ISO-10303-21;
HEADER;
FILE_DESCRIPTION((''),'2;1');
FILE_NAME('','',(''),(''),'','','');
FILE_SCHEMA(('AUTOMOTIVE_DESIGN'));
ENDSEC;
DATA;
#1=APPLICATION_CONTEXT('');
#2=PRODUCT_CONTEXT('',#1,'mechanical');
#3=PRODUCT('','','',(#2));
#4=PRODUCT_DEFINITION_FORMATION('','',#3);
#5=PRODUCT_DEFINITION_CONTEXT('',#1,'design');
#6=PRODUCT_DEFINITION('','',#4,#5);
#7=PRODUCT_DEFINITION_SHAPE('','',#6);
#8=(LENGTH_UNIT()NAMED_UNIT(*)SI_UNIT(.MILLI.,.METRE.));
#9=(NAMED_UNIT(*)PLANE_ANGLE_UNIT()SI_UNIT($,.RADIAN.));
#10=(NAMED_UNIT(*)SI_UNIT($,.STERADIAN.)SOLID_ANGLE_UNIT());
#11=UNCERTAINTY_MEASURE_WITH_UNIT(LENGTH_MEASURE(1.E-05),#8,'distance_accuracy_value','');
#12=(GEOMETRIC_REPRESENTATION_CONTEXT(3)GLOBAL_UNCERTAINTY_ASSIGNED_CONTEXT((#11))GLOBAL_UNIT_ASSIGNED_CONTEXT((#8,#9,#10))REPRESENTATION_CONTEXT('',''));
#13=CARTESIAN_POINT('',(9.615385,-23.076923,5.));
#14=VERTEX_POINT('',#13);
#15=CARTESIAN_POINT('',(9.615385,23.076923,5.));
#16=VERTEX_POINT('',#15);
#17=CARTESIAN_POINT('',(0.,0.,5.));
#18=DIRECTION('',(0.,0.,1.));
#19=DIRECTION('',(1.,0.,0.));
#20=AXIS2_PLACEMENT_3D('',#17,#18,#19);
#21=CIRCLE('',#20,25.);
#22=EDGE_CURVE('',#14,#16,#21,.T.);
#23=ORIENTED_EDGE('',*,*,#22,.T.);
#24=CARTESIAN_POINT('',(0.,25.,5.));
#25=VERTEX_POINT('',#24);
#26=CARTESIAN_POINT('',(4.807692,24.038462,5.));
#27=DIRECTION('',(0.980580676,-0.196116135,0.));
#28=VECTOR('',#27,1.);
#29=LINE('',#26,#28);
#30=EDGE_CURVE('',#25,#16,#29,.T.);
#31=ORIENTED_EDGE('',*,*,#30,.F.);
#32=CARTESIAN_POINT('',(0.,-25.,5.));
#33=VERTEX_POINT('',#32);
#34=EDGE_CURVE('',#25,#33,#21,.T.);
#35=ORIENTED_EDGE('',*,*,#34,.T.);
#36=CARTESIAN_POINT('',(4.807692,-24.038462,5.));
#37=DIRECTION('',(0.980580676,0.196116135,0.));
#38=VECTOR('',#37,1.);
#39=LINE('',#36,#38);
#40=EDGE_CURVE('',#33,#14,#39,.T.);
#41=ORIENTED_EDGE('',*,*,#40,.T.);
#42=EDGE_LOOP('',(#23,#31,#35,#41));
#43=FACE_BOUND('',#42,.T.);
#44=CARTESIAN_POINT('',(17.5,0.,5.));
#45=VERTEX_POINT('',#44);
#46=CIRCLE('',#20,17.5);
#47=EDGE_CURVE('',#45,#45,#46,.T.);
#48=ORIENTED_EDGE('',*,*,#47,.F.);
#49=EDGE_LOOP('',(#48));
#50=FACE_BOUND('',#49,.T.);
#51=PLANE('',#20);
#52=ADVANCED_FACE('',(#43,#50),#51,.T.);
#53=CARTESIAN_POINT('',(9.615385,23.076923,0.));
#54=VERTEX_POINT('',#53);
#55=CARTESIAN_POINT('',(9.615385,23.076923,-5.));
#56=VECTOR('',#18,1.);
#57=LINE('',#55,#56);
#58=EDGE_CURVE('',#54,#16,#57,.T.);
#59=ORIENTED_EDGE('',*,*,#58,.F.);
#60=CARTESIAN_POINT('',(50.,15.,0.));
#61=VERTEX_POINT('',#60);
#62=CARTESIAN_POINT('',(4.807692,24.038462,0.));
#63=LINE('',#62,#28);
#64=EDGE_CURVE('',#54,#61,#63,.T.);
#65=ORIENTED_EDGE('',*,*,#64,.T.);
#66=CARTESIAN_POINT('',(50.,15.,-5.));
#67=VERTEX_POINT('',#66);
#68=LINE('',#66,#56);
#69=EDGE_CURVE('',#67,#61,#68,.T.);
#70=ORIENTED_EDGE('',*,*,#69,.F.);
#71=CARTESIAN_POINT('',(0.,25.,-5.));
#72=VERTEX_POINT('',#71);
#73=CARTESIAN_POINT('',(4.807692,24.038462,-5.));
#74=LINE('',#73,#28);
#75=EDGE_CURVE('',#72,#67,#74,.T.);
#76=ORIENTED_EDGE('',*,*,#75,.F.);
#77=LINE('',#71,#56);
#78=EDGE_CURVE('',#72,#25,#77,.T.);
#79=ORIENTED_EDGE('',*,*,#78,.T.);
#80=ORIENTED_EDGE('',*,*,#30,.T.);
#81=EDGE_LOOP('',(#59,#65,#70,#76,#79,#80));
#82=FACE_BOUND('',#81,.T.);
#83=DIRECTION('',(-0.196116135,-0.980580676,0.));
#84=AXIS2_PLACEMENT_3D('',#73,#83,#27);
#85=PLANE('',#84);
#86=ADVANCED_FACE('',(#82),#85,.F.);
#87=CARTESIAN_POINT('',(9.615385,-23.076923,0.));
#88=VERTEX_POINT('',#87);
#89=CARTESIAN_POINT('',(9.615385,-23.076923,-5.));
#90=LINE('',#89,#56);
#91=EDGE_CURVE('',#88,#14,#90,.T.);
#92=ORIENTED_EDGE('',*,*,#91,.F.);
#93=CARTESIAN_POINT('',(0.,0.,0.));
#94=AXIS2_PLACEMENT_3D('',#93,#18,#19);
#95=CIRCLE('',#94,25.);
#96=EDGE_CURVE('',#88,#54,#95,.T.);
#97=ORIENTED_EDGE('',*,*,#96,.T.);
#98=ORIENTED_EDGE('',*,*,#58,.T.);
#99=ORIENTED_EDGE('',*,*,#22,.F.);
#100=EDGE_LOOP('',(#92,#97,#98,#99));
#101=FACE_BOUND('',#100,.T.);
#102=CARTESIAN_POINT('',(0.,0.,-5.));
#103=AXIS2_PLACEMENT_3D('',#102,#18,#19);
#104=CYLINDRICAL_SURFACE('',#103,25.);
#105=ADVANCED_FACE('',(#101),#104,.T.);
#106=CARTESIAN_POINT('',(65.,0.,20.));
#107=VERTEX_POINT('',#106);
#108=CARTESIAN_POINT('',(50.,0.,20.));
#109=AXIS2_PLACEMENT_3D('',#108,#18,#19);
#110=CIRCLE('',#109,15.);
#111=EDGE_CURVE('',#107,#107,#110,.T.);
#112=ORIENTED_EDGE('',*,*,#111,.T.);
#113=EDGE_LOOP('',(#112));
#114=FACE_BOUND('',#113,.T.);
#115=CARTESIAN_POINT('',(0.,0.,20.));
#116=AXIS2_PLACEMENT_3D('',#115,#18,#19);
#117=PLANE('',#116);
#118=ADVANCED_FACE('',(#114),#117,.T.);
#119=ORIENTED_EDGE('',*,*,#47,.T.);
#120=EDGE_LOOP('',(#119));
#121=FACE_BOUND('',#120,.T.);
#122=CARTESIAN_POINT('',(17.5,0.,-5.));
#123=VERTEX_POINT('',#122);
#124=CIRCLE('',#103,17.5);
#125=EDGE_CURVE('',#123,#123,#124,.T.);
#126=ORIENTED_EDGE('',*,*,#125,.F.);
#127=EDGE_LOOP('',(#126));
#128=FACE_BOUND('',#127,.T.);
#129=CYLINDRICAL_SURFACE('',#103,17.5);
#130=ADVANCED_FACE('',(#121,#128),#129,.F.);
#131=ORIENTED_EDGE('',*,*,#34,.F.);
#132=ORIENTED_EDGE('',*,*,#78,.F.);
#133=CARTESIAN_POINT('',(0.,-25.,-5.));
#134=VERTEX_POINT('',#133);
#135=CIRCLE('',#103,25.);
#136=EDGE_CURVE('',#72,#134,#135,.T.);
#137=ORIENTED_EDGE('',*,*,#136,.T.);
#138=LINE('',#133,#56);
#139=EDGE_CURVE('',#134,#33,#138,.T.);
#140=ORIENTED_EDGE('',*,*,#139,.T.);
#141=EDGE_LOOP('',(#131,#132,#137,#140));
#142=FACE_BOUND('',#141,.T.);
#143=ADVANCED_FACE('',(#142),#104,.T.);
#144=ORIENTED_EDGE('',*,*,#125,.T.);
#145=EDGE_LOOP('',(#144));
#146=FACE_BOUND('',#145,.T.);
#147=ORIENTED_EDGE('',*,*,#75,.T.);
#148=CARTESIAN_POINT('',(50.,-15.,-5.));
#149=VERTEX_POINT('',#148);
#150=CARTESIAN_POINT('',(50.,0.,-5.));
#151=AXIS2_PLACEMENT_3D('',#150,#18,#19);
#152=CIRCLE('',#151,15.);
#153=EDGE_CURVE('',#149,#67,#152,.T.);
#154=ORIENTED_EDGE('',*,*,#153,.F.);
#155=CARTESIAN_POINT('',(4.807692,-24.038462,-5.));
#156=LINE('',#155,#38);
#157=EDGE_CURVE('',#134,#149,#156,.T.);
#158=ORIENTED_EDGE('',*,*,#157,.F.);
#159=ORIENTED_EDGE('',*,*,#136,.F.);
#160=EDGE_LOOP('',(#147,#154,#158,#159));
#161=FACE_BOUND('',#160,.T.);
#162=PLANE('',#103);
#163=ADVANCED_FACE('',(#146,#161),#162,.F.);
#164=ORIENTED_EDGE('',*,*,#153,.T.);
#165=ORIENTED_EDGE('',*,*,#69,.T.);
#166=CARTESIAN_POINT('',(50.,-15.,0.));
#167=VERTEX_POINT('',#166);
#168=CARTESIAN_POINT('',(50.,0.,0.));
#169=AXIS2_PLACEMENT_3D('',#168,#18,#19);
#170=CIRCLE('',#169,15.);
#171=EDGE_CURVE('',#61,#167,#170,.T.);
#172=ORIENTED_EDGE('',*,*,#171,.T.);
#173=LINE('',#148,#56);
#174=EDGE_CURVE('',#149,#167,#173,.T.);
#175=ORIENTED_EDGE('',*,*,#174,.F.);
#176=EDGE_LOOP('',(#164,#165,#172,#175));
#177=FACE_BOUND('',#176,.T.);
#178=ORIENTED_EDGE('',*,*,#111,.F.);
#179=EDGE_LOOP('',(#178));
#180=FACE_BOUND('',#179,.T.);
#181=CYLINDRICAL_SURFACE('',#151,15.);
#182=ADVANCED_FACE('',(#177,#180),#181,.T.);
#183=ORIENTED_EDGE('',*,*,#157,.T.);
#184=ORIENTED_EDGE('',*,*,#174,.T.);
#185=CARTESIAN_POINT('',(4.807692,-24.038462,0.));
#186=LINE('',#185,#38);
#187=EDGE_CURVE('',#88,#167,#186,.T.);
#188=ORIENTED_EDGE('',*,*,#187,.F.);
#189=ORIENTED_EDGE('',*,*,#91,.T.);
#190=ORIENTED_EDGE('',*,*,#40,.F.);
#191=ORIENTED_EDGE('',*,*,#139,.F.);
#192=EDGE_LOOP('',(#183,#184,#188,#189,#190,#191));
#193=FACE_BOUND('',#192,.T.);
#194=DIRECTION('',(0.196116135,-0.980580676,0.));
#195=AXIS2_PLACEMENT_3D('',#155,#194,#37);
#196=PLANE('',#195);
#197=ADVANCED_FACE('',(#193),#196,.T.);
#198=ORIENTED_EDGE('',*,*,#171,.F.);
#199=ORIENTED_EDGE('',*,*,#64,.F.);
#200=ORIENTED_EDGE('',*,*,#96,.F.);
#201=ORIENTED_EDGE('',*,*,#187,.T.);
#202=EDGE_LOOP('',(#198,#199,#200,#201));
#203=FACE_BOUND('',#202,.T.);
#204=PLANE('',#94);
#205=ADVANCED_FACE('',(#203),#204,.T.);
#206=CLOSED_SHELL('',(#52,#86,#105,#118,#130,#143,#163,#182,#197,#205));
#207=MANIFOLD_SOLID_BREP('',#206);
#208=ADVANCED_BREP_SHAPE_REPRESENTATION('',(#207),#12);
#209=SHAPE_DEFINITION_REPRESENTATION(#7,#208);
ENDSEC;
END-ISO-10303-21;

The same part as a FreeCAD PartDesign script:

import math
import FreeCAD as App
import Part
import Sketcher

V = App.Vector

doc = App.newDocument("Part")
params = doc.addObject("Spreadsheet::Sheet", "Params")
for row, (alias, value) in enumerate([
    ("sketch1_radius", "25 mm"),
    ("sketch1_radius2", "15 mm"),
    ("pad1_length", "5 mm"),
    ("sketch2_diameter", "30 mm"),
    ("pad2_length", "20 mm"),
    ("pad2_length2", "5 mm"),
    ("sketch3_diameter", "35 mm"),
    ("sketch3_radius", "25 mm"),
    ("pad3_length", "5 mm"),
    ("pad3_length2", "5 mm"),
], start=1):
    params.set(f"A{row}", alias)
    params.set(f"B{row}", "=" + value)
    params.setAlias(f"B{row}", alias)

body = doc.addObject("PartDesign::Body", "Body")

# Sketch on XY plane
sketch1 = doc.addObject("Sketcher::SketchObject", "Sketch")
body.addObject(sketch1)
sketch1.AttachmentSupport = (doc.XY_Plane, [""])
sketch1.MapMode = "FlatFace"
sketch1.addGeometry(Part.LineSegment(V(50, 15, 0), V(10, 23, 0)), False)
sketch1.addGeometry(Part.ArcOfCircle(Part.Circle(V(0, 0, 0), V(0, 0, 1), 25), math.radians(0), math.radians(67)), False)
sketch1.addGeometry(Part.ArcOfCircle(Part.Circle(V(0, 0, 0), V(0, 0, 1), 25), math.radians(-67), math.radians(0)), False)
sketch1.addGeometry(Part.LineSegment(V(10, -23, 0), V(50, -15, 0)), False)
sketch1.addGeometry(Part.ArcOfCircle(Part.Circle(V(50, 0, 0), V(0, 0, 1), 15), math.radians(90), math.radians(270)), False)
sketch1.addConstraint(Sketcher.Constraint("Coincident", 0, 2, 1, 2))
sketch1.addConstraint(Sketcher.Constraint("Tangent", 1, 1, 2, 2))
sketch1.addConstraint(Sketcher.Constraint("Coincident", 2, 1, 3, 1))
sketch1.addConstraint(Sketcher.Constraint("Coincident", 3, 2, 4, 2))
sketch1.addConstraint(Sketcher.Constraint("Coincident", 4, 1, 0, 1))
sketch1.addConstraint(Sketcher.Constraint("Coincident", 1, 3, -1, 1))
sketch1.addConstraint(Sketcher.Constraint("Equal", 1, 2))
sketch1.addConstraint(Sketcher.Constraint("Symmetric", 3, 2, 4, 1, -1))
sketch1.addConstraint(Sketcher.Constraint("PointOnObject", 1, 1, -1))
sketch1.addConstraint(Sketcher.Constraint("Vertical", 0, 2, 2, 1))
sketch1.addConstraint(Sketcher.Constraint("Vertical", 4, 3, 3, 2))
sketch1.addConstraint(Sketcher.Constraint("Radius", 1, 25.0))
sketch1.addConstraint(Sketcher.Constraint("Radius", 4, 15.0))
sketch1.addConstraint(Sketcher.Constraint("DistanceX", -1, 1, 4, 3, 50.0))
sketch1.addConstraint(Sketcher.Constraint("Distance", 0, 41.184388))
sketch1.setExpression("Constraints[11]", "Params.sketch1_radius")
sketch1.setExpression("Constraints[12]", "Params.sketch1_radius2")
pad1 = doc.addObject("PartDesign::Pad", "Pad")
body.addObject(pad1)
pad1.Profile = sketch1
pad1.setExpression("Length", "Params.pad1_length")
pad1.Reversed = True

# Sketch on XY plane
sketch2 = doc.addObject("Sketcher::SketchObject", "Sketch001")
body.addObject(sketch2)
sketch2.AttachmentSupport = (doc.XY_Plane, [""])
sketch2.MapMode = "FlatFace"
sketch2.addGeometry(Part.Circle(V(50, 0, 0), V(0, 0, 1), 15), False)
sketch2.addConstraint(Sketcher.Constraint("PointOnObject", 0, 3, -1))
sketch2.addConstraint(Sketcher.Constraint("Diameter", 0, 30.0))
sketch2.addConstraint(Sketcher.Constraint("DistanceX", -1, 1, 0, 3, 50.0))
sketch2.setExpression("Constraints[1]", "Params.sketch2_diameter")
pad2 = doc.addObject("PartDesign::Pad", "Pad001")
body.addObject(pad2)
pad2.Profile = sketch2
pad2.Type = "TwoLengths"
pad2.setExpression("Length", "Params.pad2_length")
pad2.setExpression("Length2", "Params.pad2_length2")

# Sketch on XY plane
sketch3 = doc.addObject("Sketcher::SketchObject", "Sketch002")
body.addObject(sketch3)
sketch3.AttachmentSupport = (doc.XY_Plane, [""])
sketch3.MapMode = "FlatFace"
sketch3.addGeometry(Part.LineSegment(V(10, 23, 0), V(0, 25, 0)), False)
sketch3.addGeometry(Part.ArcOfCircle(Part.Circle(V(0, 0, 0), V(0, 0, 1), 25), math.radians(90), math.radians(270)), False)
sketch3.addGeometry(Part.LineSegment(V(0, -25, 0), V(10, -23, 0)), False)
sketch3.addGeometry(Part.ArcOfCircle(Part.Circle(V(0, 0, 0), V(0, 0, 1), 25), math.radians(-67), math.radians(0)), False)
sketch3.addGeometry(Part.ArcOfCircle(Part.Circle(V(0, 0, 0), V(0, 0, 1), 25), math.radians(0), math.radians(67)), False)
sketch3.addGeometry(Part.Circle(V(0, 0, 0), V(0, 0, 1), 18), False)
sketch3.addConstraint(Sketcher.Constraint("Coincident", 0, 2, 1, 1))
sketch3.addConstraint(Sketcher.Constraint("Coincident", 1, 2, 2, 1))
sketch3.addConstraint(Sketcher.Constraint("Coincident", 2, 2, 3, 1))
sketch3.addConstraint(Sketcher.Constraint("Tangent", 3, 2, 4, 1))
sketch3.addConstraint(Sketcher.Constraint("Coincident", 4, 2, 0, 1))
sketch3.addConstraint(Sketcher.Constraint("Coincident", 1, 3, -1, 1))
sketch3.addConstraint(Sketcher.Constraint("Coincident", 3, 3, -1, 1))
sketch3.addConstraint(Sketcher.Constraint("Coincident", 5, 3, -1, 1))
sketch3.addConstraint(Sketcher.Constraint("Equal", 1, 3))
sketch3.addConstraint(Sketcher.Constraint("Equal", 3, 4))
sketch3.addConstraint(Sketcher.Constraint("PointOnObject", 0, 2, -2))
sketch3.addConstraint(Sketcher.Constraint("PointOnObject", 1, 2, -2))
sketch3.addConstraint(Sketcher.Constraint("PointOnObject", 3, 2, -1))
sketch3.addConstraint(Sketcher.Constraint("Vertical", 2, 2, 4, 2))
sketch3.addConstraint(Sketcher.Constraint("Diameter", 5, 35.0))
sketch3.addConstraint(Sketcher.Constraint("Radius", 1, 25.0))
sketch3.addConstraint(Sketcher.Constraint("Distance", 0, 9.805807))
sketch3.setExpression("Constraints[14]", "Params.sketch3_diameter")
sketch3.setExpression("Constraints[15]", "Params.sketch3_radius")
pad3 = doc.addObject("PartDesign::Pad", "Pad002")
body.addObject(pad3)
pad3.Profile = sketch3
pad3.Type = "TwoLengths"
pad3.setExpression("Length", "Params.pad3_length")
pad3.setExpression("Length2", "Params.pad3_length2")

doc.recompute()
